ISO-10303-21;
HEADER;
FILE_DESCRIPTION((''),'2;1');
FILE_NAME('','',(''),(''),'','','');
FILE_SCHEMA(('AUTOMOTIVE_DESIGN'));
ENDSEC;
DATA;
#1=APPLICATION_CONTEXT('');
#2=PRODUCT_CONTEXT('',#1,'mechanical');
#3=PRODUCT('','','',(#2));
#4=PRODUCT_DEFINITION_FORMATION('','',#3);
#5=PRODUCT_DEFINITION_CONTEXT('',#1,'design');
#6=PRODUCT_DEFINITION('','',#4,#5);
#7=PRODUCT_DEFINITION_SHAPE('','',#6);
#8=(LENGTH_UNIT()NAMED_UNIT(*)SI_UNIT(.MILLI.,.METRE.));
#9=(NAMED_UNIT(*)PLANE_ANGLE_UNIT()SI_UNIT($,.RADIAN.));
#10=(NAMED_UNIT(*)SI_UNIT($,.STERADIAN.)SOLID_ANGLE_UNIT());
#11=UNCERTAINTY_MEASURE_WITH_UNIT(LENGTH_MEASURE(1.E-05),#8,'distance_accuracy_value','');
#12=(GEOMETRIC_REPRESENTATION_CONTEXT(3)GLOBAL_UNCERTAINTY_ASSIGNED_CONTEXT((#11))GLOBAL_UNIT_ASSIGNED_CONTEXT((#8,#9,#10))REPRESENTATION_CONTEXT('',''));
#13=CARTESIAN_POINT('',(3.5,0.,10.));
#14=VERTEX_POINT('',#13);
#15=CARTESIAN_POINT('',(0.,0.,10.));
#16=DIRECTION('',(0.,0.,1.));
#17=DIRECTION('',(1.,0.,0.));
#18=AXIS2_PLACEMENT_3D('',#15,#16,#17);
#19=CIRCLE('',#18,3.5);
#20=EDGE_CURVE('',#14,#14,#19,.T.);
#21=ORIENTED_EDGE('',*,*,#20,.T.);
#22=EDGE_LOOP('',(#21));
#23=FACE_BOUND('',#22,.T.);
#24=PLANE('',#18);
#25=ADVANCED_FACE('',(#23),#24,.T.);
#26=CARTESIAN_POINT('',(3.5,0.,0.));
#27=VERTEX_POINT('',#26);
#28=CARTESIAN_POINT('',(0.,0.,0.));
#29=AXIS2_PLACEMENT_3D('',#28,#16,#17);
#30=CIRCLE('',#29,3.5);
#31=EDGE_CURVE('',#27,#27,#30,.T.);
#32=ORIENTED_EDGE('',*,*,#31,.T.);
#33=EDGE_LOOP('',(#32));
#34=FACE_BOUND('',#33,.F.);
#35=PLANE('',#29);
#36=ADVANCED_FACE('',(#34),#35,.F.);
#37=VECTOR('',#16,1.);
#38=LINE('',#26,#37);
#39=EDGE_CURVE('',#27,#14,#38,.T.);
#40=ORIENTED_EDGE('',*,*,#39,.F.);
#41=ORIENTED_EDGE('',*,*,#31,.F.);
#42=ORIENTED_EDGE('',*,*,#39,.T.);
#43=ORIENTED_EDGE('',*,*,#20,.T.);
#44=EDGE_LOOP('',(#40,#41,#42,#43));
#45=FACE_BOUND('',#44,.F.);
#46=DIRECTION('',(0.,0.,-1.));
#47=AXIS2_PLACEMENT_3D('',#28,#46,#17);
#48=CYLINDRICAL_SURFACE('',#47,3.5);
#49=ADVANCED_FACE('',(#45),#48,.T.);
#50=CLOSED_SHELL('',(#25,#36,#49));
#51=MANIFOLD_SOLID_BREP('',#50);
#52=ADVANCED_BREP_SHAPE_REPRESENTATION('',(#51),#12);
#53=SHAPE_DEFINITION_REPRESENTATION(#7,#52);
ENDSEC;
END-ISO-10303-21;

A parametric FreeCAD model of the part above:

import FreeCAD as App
import Part
import Sketcher
from FreeCAD import Vector

doc = App.newDocument("Part")
body = doc.addObject("PartDesign::Body", "Body")

# Sketch on XY plane
sketch1 = body.newObject("Sketcher::SketchObject", "Sketch")
sketch1.AttachmentSupport = (doc.getObject("XY_Plane"), [""])
sketch1.MapMode = "FlatFace"
sketch1.addGeometry(Part.Circle(Vector(0, 0, 0), Vector(0, 0, 1), 3.5), False)
sketch1.addConstraint(Sketcher.Constraint("Coincident", 0, 3, -1, 1))
sketch1.addConstraint(Sketcher.Constraint("Diameter", 0, 7.0))
pad1 = body.newObject("PartDesign::Pad", "Pad")
pad1.Profile = sketch1
pad1.Length = 10

doc.recompute()
